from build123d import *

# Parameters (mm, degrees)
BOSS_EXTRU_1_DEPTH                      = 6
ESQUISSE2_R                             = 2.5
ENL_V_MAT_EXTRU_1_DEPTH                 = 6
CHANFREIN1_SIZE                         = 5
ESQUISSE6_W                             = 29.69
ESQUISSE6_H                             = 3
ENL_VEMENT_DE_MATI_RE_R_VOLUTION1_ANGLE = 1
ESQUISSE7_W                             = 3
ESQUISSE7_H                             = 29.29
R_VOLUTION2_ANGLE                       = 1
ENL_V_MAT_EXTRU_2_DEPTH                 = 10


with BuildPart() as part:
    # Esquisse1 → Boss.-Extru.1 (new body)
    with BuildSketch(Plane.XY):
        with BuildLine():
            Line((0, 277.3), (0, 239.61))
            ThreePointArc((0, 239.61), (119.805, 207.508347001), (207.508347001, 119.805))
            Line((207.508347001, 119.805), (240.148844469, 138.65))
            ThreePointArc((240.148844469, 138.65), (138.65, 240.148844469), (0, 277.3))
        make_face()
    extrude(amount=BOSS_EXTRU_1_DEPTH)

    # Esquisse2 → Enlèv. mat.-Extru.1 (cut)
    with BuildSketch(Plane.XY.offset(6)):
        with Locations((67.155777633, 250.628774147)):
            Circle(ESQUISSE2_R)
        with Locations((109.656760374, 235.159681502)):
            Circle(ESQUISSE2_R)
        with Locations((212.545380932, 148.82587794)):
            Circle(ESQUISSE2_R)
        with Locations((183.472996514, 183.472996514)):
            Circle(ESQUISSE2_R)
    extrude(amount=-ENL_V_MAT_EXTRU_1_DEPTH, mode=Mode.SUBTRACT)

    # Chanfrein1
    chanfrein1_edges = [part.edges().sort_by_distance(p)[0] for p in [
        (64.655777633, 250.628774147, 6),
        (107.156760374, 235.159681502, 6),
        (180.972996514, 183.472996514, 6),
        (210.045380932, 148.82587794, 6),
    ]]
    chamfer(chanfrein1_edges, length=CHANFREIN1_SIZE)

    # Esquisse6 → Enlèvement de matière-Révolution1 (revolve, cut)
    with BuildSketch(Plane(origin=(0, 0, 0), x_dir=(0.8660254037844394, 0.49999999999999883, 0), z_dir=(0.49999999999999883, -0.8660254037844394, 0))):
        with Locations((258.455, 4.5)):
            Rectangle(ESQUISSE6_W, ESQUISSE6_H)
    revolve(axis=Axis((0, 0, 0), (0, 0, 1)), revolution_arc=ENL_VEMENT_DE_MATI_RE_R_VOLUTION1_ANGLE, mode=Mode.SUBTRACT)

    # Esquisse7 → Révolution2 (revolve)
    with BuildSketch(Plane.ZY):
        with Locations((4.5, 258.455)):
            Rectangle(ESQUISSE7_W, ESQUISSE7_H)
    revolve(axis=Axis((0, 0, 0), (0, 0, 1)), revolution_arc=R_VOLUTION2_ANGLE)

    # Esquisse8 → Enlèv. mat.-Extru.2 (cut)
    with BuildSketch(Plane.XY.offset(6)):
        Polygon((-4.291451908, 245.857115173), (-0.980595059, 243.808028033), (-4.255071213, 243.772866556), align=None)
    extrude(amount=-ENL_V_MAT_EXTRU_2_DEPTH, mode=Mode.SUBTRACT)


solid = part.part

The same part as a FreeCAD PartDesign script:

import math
import FreeCAD as App
import Part
import Sketcher
Q = App.Units.Quantity


def edges_at(feature, points):
    """Names of the edges that pass closest to the given points."""
    edges = feature.Shape.Edges
    near = lambda p: min(range(len(edges)), key=lambda i: edges[i].distToShape(Part.Vertex(*p))[0])
    return sorted({f"Edge{near(p) + 1}" for p in points})

doc = App.newDocument("Part")
body = doc.addObject("PartDesign::Body", "Body")

# Sketch on XY plane
sketch1 = body.newObject("Sketcher::SketchObject", "Sketch")
sketch1.AttachmentSupport = (doc.getObject("XY_Plane"), [""])
sketch1.MapMode = "FlatFace"
sketch1.addGeometry([
    Part.LineSegment(App.Vector(0, 277, 0), App.Vector(0, 240, 0)),
    Part.ArcOfCircle(Part.Circle(App.Vector(0, 0, 0), App.Vector(0, 0, 1), 240), math.radians(30), math.radians(90)),
    Part.LineSegment(App.Vector(208, 120, 0), App.Vector(240, 139, 0)),
    Part.ArcOfCircle(Part.Circle(App.Vector(0, 0, 0), App.Vector(0, 0, 1), 277), math.radians(30), math.radians(90)),
], False)
sketch1.addConstraint([
    Sketcher.Constraint("Coincident", 0, 2, 1, 2),
    Sketcher.Constraint("Coincident", 1, 1, 2, 1),
    Sketcher.Constraint("Coincident", 2, 2, 3, 1),
    Sketcher.Constraint("Coincident", 3, 2, 0, 1),
    Sketcher.Constraint("Vertical", 0),
    Sketcher.Constraint("Coincident", 1, 3, -1, 1),
    Sketcher.Constraint("Coincident", 3, 3, -1, 1),
    Sketcher.Constraint("PointOnObject", 0, 2, -2),
    Sketcher.Constraint("Radius", 3, 277.3),
    Sketcher.Constraint("Angle", 2, Q("30 deg")),
    Sketcher.Constraint("Radius", 1, 239.61),
    Sketcher.Constraint("DistanceY", -1, 1, 2, 2, 138.65),
])
pad1 = body.newObject("PartDesign::Pad", "Pad")
pad1.Profile = sketch1
pad1.Length = 6

# Sketch on XY plane
sketch2 = body.newObject("Sketcher::SketchObject", "Sketch001")
sketch2.AttachmentSupport = (doc.getObject("XY_Plane"), [""])
sketch2.MapMode = "FlatFace"
sketch2.AttachmentOffset = App.Placement(App.Vector(0, 0, 6), App.Rotation())
sketch2.addGeometry([
    Part.Circle(App.Vector(67.2, 250.6, 0), App.Vector(0, 0, 1), 2.5),
    Part.Circle(App.Vector(109.7, 235.2, 0), App.Vector(0, 0, 1), 2.5),
    Part.Circle(App.Vector(212.5, 148.8, 0), App.Vector(0, 0, 1), 2.5),
    Part.Circle(App.Vector(183.5, 183.5, 0), App.Vector(0, 0, 1), 2.5),
], False)
sketch2.addConstraint([
    Sketcher.Constraint("Equal", 0, 1),
    Sketcher.Constraint("Equal", 1, 2),
    Sketcher.Constraint("Equal", 2, 3),
    Sketcher.Constraint("Diameter", 0, 5.0),
    Sketcher.Constraint("DistanceX", -1, 1, 1, 3, 109.65676),
    Sketcher.Constraint("DistanceY", -1, 1, 1, 3, 235.159682),
    Sketcher.Constraint("DistanceX", -1, 1, 2, 3, 212.545381),
    Sketcher.Constraint("DistanceY", 2, 3, 3, 3, 34.647119),
    Sketcher.Constraint("DistanceX", 0, 3, 3, 3, 116.317219),
    Sketcher.Constraint("DistanceX", -1, 1, 0, 3, 67.155778),
    Sketcher.Constraint("DistanceY", -1, 1, 0, 3, 250.628774),
    Sketcher.Constraint("DistanceY", -1, 1, 2, 3, 148.825878),
])
pocket1 = body.newObject("PartDesign::Pocket", "Pocket")
pocket1.Profile = sketch2
pocket1.Length = 6
doc.recompute()

chamfer = body.newObject("PartDesign::Chamfer", "Chamfer")
chamfer.Base = (pocket1, edges_at(pocket1, [
    (64.656, 250.629, 6),
    (107.157, 235.16, 6),
    (180.973, 183.473, 6),
    (210.045, 148.826, 6),
]))
chamfer.Size = 5

# Sketch on an angled plane
sketch3 = body.newObject("Sketcher::SketchObject", "Sketch002")
sketch3.Placement = App.Placement(App.Vector(0, 0, 0), App.Rotation(App.Vector(0.866025404, 0.5, 0), App.Vector(0, 0, 1), App.Vector(0.5, -0.866025404, 0), "ZXY"))
sketch3.addGeometry([
    Part.LineSegment(App.Vector(243.6, 6, 0), App.Vector(243.6, 3, 0)),
    Part.LineSegment(App.Vector(243.6, 3, 0), App.Vector(273.3, 3, 0)),
    Part.LineSegment(App.Vector(273.3, 3, 0), App.Vector(273.3, 6, 0)),
    Part.LineSegment(App.Vector(273.3, 6, 0), App.Vector(243.6, 6, 0)),
], False)
sketch3.addConstraint([
    Sketcher.Constraint("Coincident", 0, 2, 1, 1),
    Sketcher.Constraint("Coincident", 1, 2, 2, 1),
    Sketcher.Constraint("Coincident", 2, 2, 3, 1),
    Sketcher.Constraint("Coincident", 3, 2, 0, 1),
    Sketcher.Constraint("Vertical", 0),
    Sketcher.Constraint("Horizontal", 1),
    Sketcher.Constraint("Vertical", 2),
    Sketcher.Constraint("Horizontal", 3),
    Sketcher.Constraint("DistanceY", 0, 2, 0, 1, 3.0),
    Sketcher.Constraint("DistanceY", -1, 1, 0, 2, 3.0),
    Sketcher.Constraint("DistanceX", 1, 1, 1, 2, 29.69),
    Sketcher.Constraint("DistanceX", -1, 1, 1, 2, 273.3),
])
groove = body.newObject("PartDesign::Groove", "Groove")
groove.Profile = sketch3
groove.ReferenceAxis = (sketch3, ["V_Axis"])
groove.Angle = 1

# Sketch on YZ plane
sketch4 = body.newObject("Sketcher::SketchObject", "Sketch003")
sketch4.AttachmentSupport = (doc.getObject("YZ_Plane"), [""])
sketch4.MapMode = "FlatFace"
sketch4.addGeometry([
    Part.LineSegment(App.Vector(273.1, 3, 0), App.Vector(243.8, 3, 0)),
    Part.LineSegment(App.Vector(243.8, 3, 0), App.Vector(243.8, 6, 0)),
    Part.LineSegment(App.Vector(243.8, 6, 0), App.Vector(273.1, 6, 0)),
    Part.LineSegment(App.Vector(273.1, 6, 0), App.Vector(273.1, 3, 0)),
], False)
sketch4.addConstraint([
    Sketcher.Constraint("Coincident", 0, 2, 1, 1),
    Sketcher.Constraint("Coincident", 1, 2, 2, 1),
    Sketcher.Constraint("Coincident", 2, 2, 3, 1),
    Sketcher.Constraint("Coincident", 3, 2, 0, 1),
    Sketcher.Constraint("Horizontal", 0),
    Sketcher.Constraint("Vertical", 1),
    Sketcher.Constraint("Horizontal", 2),
    Sketcher.Constraint("Vertical", 3),
    Sketcher.Constraint("DistanceY", 1, 1, 1, 2, 3.0),
    Sketcher.Constraint("DistanceY", -1, 1, 0, 2, 3.0),
    Sketcher.Constraint("DistanceX", 0, 2, 0, 1, 29.29),
    Sketcher.Constraint("DistanceX", -1, 1, 2, 2, 273.1),
])
revolution = body.newObject("PartDesign::Revolution", "Revolution")
revolution.Profile = sketch4
revolution.ReferenceAxis = (sketch4, ["V_Axis"])
revolution.Angle = 1

# Sketch on XY plane
sketch5 = body.newObject("Sketcher::SketchObject", "Sketch004")
sketch5.AttachmentSupport = (doc.getObject("XY_Plane"), [""])
sketch5.MapMode = "FlatFace"
sketch5.AttachmentOffset = App.Placement(App.Vector(0, 0, 6), App.Rotation())
sketch5.addGeometry([
    Part.LineSegment(App.Vector(-0.980595, 243.808028, 0), App.Vector(-4.291452, 245.857115, 0)),
    Part.LineSegment(App.Vector(-4.291452, 245.857115, 0), App.Vector(-4.255071, 243.772867, 0)),
    Part.LineSegment(App.Vector(-4.255071, 243.772867, 0), App.Vector(-0.980595, 243.808028, 0)),
], False)
sketch5.addConstraint([
    Sketcher.Constraint("Coincident", 0, 2, 1, 1),
    Sketcher.Constraint("Coincident", 1, 2, 2, 1),
    Sketcher.Constraint("Coincident", 2, 2, 0, 1),
    Sketcher.Constraint("Angle", 1, Q("-89 deg")),
    Sketcher.Constraint("DistanceX", 0, 2, -1, 1, 4.291452),
    Sketcher.Constraint("DistanceX", 1, 2, -1, 1, 4.255071),
    Sketcher.Constraint("DistanceY", -1, 1, 2, 2, 243.808028),
    Sketcher.Constraint("DistanceY", 1, 2, 2, 2, 0.035161),
    Sketcher.Constraint("Distance", 0, 3.893653),
])
pocket2 = body.newObject("PartDesign::Pocket", "Pocket001")
pocket2.Profile = sketch5
pocket2.Length = 10

doc.recompute()
